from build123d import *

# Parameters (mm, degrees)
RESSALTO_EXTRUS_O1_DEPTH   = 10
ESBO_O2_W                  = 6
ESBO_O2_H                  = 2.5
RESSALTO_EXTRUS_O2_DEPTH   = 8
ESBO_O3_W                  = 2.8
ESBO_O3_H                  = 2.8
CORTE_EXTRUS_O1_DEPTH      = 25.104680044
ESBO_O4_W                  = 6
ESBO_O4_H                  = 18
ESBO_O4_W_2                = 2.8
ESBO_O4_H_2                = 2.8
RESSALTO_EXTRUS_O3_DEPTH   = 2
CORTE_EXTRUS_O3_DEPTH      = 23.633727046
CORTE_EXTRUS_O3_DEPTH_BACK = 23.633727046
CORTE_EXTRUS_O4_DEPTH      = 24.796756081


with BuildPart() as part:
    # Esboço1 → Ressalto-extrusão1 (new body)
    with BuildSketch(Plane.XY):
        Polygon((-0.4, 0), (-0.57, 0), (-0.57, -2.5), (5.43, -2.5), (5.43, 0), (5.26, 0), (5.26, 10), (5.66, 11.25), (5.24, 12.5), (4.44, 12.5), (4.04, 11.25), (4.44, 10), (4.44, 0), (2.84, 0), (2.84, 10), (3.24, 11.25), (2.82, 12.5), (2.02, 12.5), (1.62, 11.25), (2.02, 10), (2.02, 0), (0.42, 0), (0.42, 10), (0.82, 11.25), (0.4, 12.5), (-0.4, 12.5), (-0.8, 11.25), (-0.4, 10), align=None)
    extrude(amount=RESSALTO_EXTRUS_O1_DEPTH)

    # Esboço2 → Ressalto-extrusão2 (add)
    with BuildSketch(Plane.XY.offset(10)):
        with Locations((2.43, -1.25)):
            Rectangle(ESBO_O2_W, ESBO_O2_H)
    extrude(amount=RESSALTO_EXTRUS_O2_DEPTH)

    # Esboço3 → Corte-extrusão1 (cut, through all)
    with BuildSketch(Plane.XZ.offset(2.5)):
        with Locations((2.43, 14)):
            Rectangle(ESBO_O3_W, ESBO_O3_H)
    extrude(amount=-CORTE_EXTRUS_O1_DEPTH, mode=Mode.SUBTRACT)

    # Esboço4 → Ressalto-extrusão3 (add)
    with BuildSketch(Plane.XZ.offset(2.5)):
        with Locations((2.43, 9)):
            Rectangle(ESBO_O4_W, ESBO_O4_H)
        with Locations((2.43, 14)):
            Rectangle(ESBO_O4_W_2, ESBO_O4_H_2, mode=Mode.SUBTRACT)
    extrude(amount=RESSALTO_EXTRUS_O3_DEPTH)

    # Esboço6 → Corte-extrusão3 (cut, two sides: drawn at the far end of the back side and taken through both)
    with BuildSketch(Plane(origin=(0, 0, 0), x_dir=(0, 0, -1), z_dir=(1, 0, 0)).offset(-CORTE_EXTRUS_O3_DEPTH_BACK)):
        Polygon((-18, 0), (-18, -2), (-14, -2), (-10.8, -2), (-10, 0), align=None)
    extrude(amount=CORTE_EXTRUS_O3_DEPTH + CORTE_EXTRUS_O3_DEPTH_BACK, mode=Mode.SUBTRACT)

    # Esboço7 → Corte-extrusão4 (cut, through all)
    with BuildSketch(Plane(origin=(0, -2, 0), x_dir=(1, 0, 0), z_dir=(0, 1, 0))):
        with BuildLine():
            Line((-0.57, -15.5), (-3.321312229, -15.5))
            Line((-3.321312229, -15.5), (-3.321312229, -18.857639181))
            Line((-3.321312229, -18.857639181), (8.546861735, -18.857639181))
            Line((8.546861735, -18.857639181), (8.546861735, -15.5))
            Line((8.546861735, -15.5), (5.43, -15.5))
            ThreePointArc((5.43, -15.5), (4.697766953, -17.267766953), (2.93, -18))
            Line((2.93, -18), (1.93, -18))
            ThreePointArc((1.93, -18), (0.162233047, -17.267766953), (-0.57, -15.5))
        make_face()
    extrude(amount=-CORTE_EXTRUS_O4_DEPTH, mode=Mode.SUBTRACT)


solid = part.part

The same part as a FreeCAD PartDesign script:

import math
import FreeCAD as App
import Part
import Sketcher

V = App.Vector
Q = App.Units.Quantity

doc = App.newDocument("Part")
body = doc.addObject("PartDesign::Body", "Body")

sketch1 = body.newObject("Sketcher::SketchObject", "Sketch")
sketch1.AttachmentSupport = (doc.getObject("XY_Plane"), [""])
sketch1.MapMode = "FlatFace"
sketch1.addGeometry([
    Part.LineSegment(V(-0.4, 0, 0), V(-0.57, 0, 0)),
    Part.LineSegment(V(-0.57, 0, 0), V(-0.57, -2.5, 0)),
    Part.LineSegment(V(-0.57, -2.5, 0), V(5.43, -2.5, 0)),
    Part.LineSegment(V(5.43, -2.5, 0), V(5.43, 0, 0)),
    Part.LineSegment(V(5.43, 0, 0), V(5.26, 0, 0)),
    Part.LineSegment(V(5.26, 0, 0), V(5.26, 10, 0)),
    Part.LineSegment(V(5.26, 10, 0), V(5.66, 11.25, 0)),
    Part.LineSegment(V(5.66, 11.25, 0), V(5.24, 12.5, 0)),
    Part.LineSegment(V(5.24, 12.5, 0), V(4.44, 12.5, 0)),
    Part.LineSegment(V(4.44, 12.5, 0), V(4.04, 11.25, 0)),
    Part.LineSegment(V(4.04, 11.25, 0), V(4.44, 10, 0)),
    Part.LineSegment(V(4.44, 10, 0), V(4.44, 0, 0)),
    Part.LineSegment(V(4.44, 0, 0), V(2.84, 0, 0)),
    Part.LineSegment(V(2.84, 0, 0), V(2.84, 10, 0)),
    Part.LineSegment(V(2.84, 10, 0), V(3.24, 11.25, 0)),
    Part.LineSegment(V(3.24, 11.25, 0), V(2.82, 12.5, 0)),
    Part.LineSegment(V(2.82, 12.5, 0), V(2.02, 12.5, 0)),
    Part.LineSegment(V(2.02, 12.5, 0), V(1.62, 11.25, 0)),
    Part.LineSegment(V(1.62, 11.25, 0), V(2.02, 10, 0)),
    Part.LineSegment(V(2.02, 10, 0), V(2.02, 0, 0)),
    Part.LineSegment(V(2.02, 0, 0), V(0.42, 0, 0)),
    Part.LineSegment(V(0.42, 0, 0), V(0.42, 10, 0)),
    Part.LineSegment(V(0.42, 10, 0), V(0.82, 11.25, 0)),
    Part.LineSegment(V(0.82, 11.25, 0), V(0.4, 12.5, 0)),
    Part.LineSegment(V(0.4, 12.5, 0), V(-0.4, 12.5, 0)),
    Part.LineSegment(V(-0.4, 12.5, 0), V(-0.8, 11.25, 0)),
    Part.LineSegment(V(-0.8, 11.25, 0), V(-0.4, 10, 0)),
    Part.LineSegment(V(-0.4, 10, 0), V(-0.4, 0, 0)),
], False)
sketch1.addConstraint([
    Sketcher.Constraint("Coincident", 0, 2, 1, 1),
    Sketcher.Constraint("Coincident", 1, 2, 2, 1),
    Sketcher.Constraint("Coincident", 2, 2, 3, 1),
    Sketcher.Constraint("Coincident", 3, 2, 4, 1),
    Sketcher.Constraint("Coincident", 4, 2, 5, 1),
    Sketcher.Constraint("Coincident", 5, 2, 6, 1),
    Sketcher.Constraint("Coincident", 6, 2, 7, 1),
    Sketcher.Constraint("Coincident", 7, 2, 8, 1),
    Sketcher.Constraint("Coincident", 8, 2, 9, 1),
    Sketcher.Constraint("Coincident", 9, 2, 10, 1),
    Sketcher.Constraint("Coincident", 10, 2, 11, 1),
    Sketcher.Constraint("Coincident", 11, 2, 12, 1),
    Sketcher.Constraint("Coincident", 12, 2, 13, 1),
    Sketcher.Constraint("Coincident", 13, 2, 14, 1),
    Sketcher.Constraint("Coincident", 14, 2, 15, 1),
    Sketcher.Constraint("Coincident", 15, 2, 16, 1),
    Sketcher.Constraint("Coincident", 16, 2, 17, 1),
    Sketcher.Constraint("Coincident", 17, 2, 18, 1),
    Sketcher.Constraint("Coincident", 18, 2, 19, 1),
    Sketcher.Constraint("Coincident", 19, 2, 20, 1),
    Sketcher.Constraint("Coincident", 20, 2, 21, 1),
    Sketcher.Constraint("Coincident", 21, 2, 22, 1),
    Sketcher.Constraint("Coincident", 22, 2, 23, 1),
    Sketcher.Constraint("Coincident", 23, 2, 24, 1),
    Sketcher.Constraint("Coincident", 24, 2, 25, 1),
    Sketcher.Constraint("Coincident", 25, 2, 26, 1),
    Sketcher.Constraint("Coincident", 26, 2, 27, 1),
    Sketcher.Constraint("Coincident", 27, 2, 0, 1),
    Sketcher.Constraint("Horizontal", 0),
    Sketcher.Constraint("Vertical", 1),
    Sketcher.Constraint("Horizontal", 2),
    Sketcher.Constraint("Vertical", 3),
    Sketcher.Constraint("Horizontal", 4),
    Sketcher.Constraint("Vertical", 5),
    Sketcher.Constraint("Horizontal", 8),
    Sketcher.Constraint("Vertical", 11),
    Sketcher.Constraint("Horizontal", 12),
    Sketcher.Constraint("Vertical", 13),
    Sketcher.Constraint("Horizontal", 16),
    Sketcher.Constraint("Vertical", 19),
    Sketcher.Constraint("Horizontal", 20),
    Sketcher.Constraint("Vertical", 21),
    Sketcher.Constraint("Horizontal", 24),
    Sketcher.Constraint("Vertical", 27),
    Sketcher.Constraint("PointOnObject", 0, 2, -1),
    Sketcher.Constraint("PointOnObject", 3, 2, -1),
    Sketcher.Constraint("PointOnObject", 11, 2, -1),
    Sketcher.Constraint("PointOnObject", 19, 2, -1),
    Sketcher.Constraint("Parallel", 6, 9),
    Sketcher.Constraint("Parallel", 9, 14),
    Sketcher.Constraint("Parallel", 7, 15),
    Sketcher.Constraint("Parallel", 14, 17),
    Sketcher.Constraint("Parallel", 10, 18),
    Sketcher.Constraint("Parallel", 17, 22),
    Sketcher.Constraint("Parallel", 15, 23),
    Sketcher.Constraint("Parallel", 22, 25),
    Sketcher.Constraint("Parallel", 18, 26),
    Sketcher.Constraint("Horizontal", 6, 2, 9, 2),
    Sketcher.Constraint("Horizontal", 5, 2, 10, 2),
    Sketcher.Constraint("Horizontal", 10, 2, 13, 2),
    Sketcher.Constraint("Horizontal", 9, 2, 14, 2),
    Sketcher.Constraint("Horizontal", 8, 2, 15, 2),
    Sketcher.Constraint("Horizontal", 14, 2, 17, 2),
    Sketcher.Constraint("Horizontal", 13, 2, 18, 2),
    Sketcher.Constraint("Horizontal", 18, 2, 21, 2),
    Sketcher.Constraint("Horizontal", 17, 2, 22, 2),
    Sketcher.Constraint("Horizontal", 16, 2, 23, 2),
    Sketcher.Constraint("Horizontal", 22, 2, 25, 2),
    Sketcher.Constraint("Horizontal", 21, 2, 26, 2),
    Sketcher.Constraint("Vertical", 8, 2, 10, 2),
    Sketcher.Constraint("Equal", 0, 4),
    Sketcher.Constraint("Equal", 8, 16),
    Sketcher.Constraint("Equal", 12, 20),
    Sketcher.Constraint("Equal", 16, 24),
    Sketcher.Constraint("Equal", 6, 9),
    Sketcher.Constraint("DistanceX", 2, 1, 2, 2, Q("6 mm")),
    Sketcher.Constraint("DistanceY", 5, 1, 5, 2, Q("10 mm")),
    Sketcher.Constraint("DistanceX", 8, 2, 8, 1, Q("0.8 mm")),
    Sketcher.Constraint("DistanceX", 12, 2, 12, 1, Q("1.6 mm")),
    Sketcher.Constraint("DistanceY", 1, 2, 1, 1, Q("2.5 mm")),
    Sketcher.Constraint("DistanceX", 14, 2, 7, 2, Q("2 mm")),
    Sketcher.Constraint("DistanceX", 0, 2, 0, 1, Q("0.17 mm")),
    Sketcher.Constraint("DistanceY", -1, 1, 7, 2, Q("12.5 mm")),
    Sketcher.Constraint("DistanceX", -1, 1, 23, 2, Q("0.4 mm")),
])
pad1 = body.newObject("PartDesign::Pad", "Pad")
pad1.Profile = sketch1
pad1.Length = 10

sketch2 = body.newObject("Sketcher::SketchObject", "Sketch001")
sketch2.AttachmentSupport = (doc.getObject("XY_Plane"), [""])
sketch2.MapMode = "FlatFace"
sketch2.AttachmentOffset = App.Placement(V(0, 0, 10), App.Rotation())
sketch2.addGeometry([
    Part.LineSegment(V(-0.57, 0, 0), V(-0.57, -2.5, 0)),
    Part.LineSegment(V(-0.57, -2.5, 0), V(5.43, -2.5, 0)),
    Part.LineSegment(V(5.43, -2.5, 0), V(5.43, 0, 0)),
    Part.LineSegment(V(5.43, 0, 0), V(-0.57, 0, 0)),
], False)
sketch2.addConstraint([
    Sketcher.Constraint("Coincident", 0, 2, 1, 1),
    Sketcher.Constraint("Coincident", 1, 2, 2, 1),
    Sketcher.Constraint("Coincident", 2, 2, 3, 1),
    Sketcher.Constraint("Coincident", 3, 2, 0, 1),
    Sketcher.Constraint("Vertical", 0),
    Sketcher.Constraint("Horizontal", 1),
    Sketcher.Constraint("Vertical", 2),
    Sketcher.Constraint("Horizontal", 3),
    Sketcher.Constraint("PointOnObject", 2, 2, -1),
    Sketcher.Constraint("DistanceX", 1, 1, 1, 2, Q("6 mm")),
    Sketcher.Constraint("DistanceY", 0, 2, 0, 1, Q("2.5 mm")),
    Sketcher.Constraint("DistanceX", 0, 2, -1, 1, Q("0.57 mm")),
])
pad2 = body.newObject("PartDesign::Pad", "Pad001")
pad2.Profile = sketch2
pad2.Length = 8

sketch3 = body.newObject("Sketcher::SketchObject", "Sketch002")
sketch3.AttachmentSupport = (doc.getObject("XZ_Plane"), [""])
sketch3.MapMode = "FlatFace"
sketch3.AttachmentOffset = App.Placement(V(0, 0, 2.5), App.Rotation())
sketch3.addGeometry([
    Part.LineSegment(V(1.03, 15.4, 0), V(1.03, 12.6, 0)),
    Part.LineSegment(V(1.03, 12.6, 0), V(3.83, 12.6, 0)),
    Part.LineSegment(V(3.83, 12.6, 0), V(3.83, 15.4, 0)),
    Part.LineSegment(V(3.83, 15.4, 0), V(1.03, 15.4, 0)),
], False)
sketch3.addConstraint([
    Sketcher.Constraint("Coincident", 0, 2, 1, 1),
    Sketcher.Constraint("Coincident", 1, 2, 2, 1),
    Sketcher.Constraint("Coincident", 2, 2, 3, 1),
    Sketcher.Constraint("Coincident", 3, 2, 0, 1),
    Sketcher.Constraint("Vertical", 0),
    Sketcher.Constraint("Horizontal", 1),
    Sketcher.Constraint("Vertical", 2),
    Sketcher.Constraint("Horizontal", 3),
    Sketcher.Constraint("Equal", 3, 0),
    Sketcher.Constraint("DistanceX", 1, 1, 1, 2, Q("2.8 mm")),
    Sketcher.Constraint("DistanceY", -1, 1, 0, 2, Q("12.6 mm")),
    Sketcher.Constraint("DistanceX", -1, 1, 0, 2, Q("1.03 mm")),
])
pocket1 = body.newObject("PartDesign::Pocket", "Pocket")
pocket1.Profile = sketch3
pocket1.Type = "ThroughAll"

sketch4 = body.newObject("Sketcher::SketchObject", "Sketch003")
sketch4.AttachmentSupport = (doc.getObject("XZ_Plane"), [""])
sketch4.MapMode = "FlatFace"
sketch4.AttachmentOffset = App.Placement(V(0, 0, 2.5), App.Rotation())
sketch4.addGeometry([
    Part.LineSegment(V(-0.57, 18, 0), V(-0.57, 0, 0)),
    Part.LineSegment(V(-0.57, 0, 0), V(5.43, 0, 0)),
    Part.LineSegment(V(5.43, 0, 0), V(5.43, 18, 0)),
    Part.LineSegment(V(5.43, 18, 0), V(-0.57, 18, 0)),
    Part.LineSegment(V(3.83, 12.6, 0), V(1.03, 12.6, 0)),
    Part.LineSegment(V(1.03, 12.6, 0), V(1.03, 15.4, 0)),
    Part.LineSegment(V(1.03, 15.4, 0), V(3.83, 15.4, 0)),
    Part.LineSegment(V(3.83, 15.4, 0), V(3.83, 12.6, 0)),
], False)
sketch4.addConstraint([
    Sketcher.Constraint("Coincident", 0, 2, 1, 1),
    Sketcher.Constraint("Coincident", 1, 2, 2, 1),
    Sketcher.Constraint("Coincident", 2, 2, 3, 1),
    Sketcher.Constraint("Coincident", 3, 2, 0, 1),
    Sketcher.Constraint("Coincident", 4, 2, 5, 1),
    Sketcher.Constraint("Coincident", 5, 2, 6, 1),
    Sketcher.Constraint("Coincident", 6, 2, 7, 1),
    Sketcher.Constraint("Coincident", 7, 2, 4, 1),
    Sketcher.Constraint("Vertical", 0),
    Sketcher.Constraint("Horizontal", 1),
    Sketcher.Constraint("Vertical", 2),
    Sketcher.Constraint("Horizontal", 3),
    Sketcher.Constraint("Horizontal", 4),
    Sketcher.Constraint("Vertical", 5),
    Sketcher.Constraint("Horizontal", 6),
    Sketcher.Constraint("Vertical", 7),
    Sketcher.Constraint("PointOnObject", 0, 2, -1),
    Sketcher.Constraint("Equal", 6, 5),
    Sketcher.Constraint("DistanceX", 1, 1, 1, 2, Q("6 mm")),
    Sketcher.Constraint("DistanceY", 0, 2, 0, 1, Q("18 mm")),
    Sketcher.Constraint("DistanceX", 4, 2, 4, 1, Q("2.8 mm")),
    Sketcher.Constraint("DistanceY", -1, 1, 4, 2, Q("12.6 mm")),
    Sketcher.Constraint("DistanceX", 3, 2, 4, 2, Q("1.6 mm")),
    Sketcher.Constraint("DistanceX", 0, 2, -1, 1, Q("0.57 mm")),
])
pad3 = body.newObject("PartDesign::Pad", "Pad002")
pad3.Profile = sketch4
pad3.Length = 2

sketch5 = body.newObject("Sketcher::SketchObject", "Sketch004")
sketch5.AttachmentSupport = (doc.getObject("YZ_Plane"), [""])
sketch5.MapMode = "FlatFace"
sketch5.addGeometry([
    Part.LineSegment(V(0, 18, 0), V(-2, 18, 0)),
    Part.LineSegment(V(-2, 18, 0), V(-2, 10.8, 0)),
    Part.LineSegment(V(-2, 10.8, 0), V(0, 10, 0)),
    Part.LineSegment(V(0, 10, 0), V(0, 18, 0)),
], False)
sketch5.addConstraint([
    Sketcher.Constraint("Coincident", 0, 2, 1, 1),
    Sketcher.Constraint("Coincident", 1, 2, 2, 1),
    Sketcher.Constraint("Coincident", 2, 2, 3, 1),
    Sketcher.Constraint("Coincident", 3, 2, 0, 1),
    Sketcher.Constraint("Horizontal", 0),
    Sketcher.Constraint("Vertical", 1),
    Sketcher.Constraint("Vertical", 3),
    Sketcher.Constraint("PointOnObject", 2, 2, -2),
    Sketcher.Constraint("DistanceX", 0, 2, 0, 1, Q("2 mm")),
    Sketcher.Constraint("DistanceY", 3, 1, 3, 2, Q("8 mm")),
    Sketcher.Constraint("DistanceY", 1, 2, 1, 1, Q("7.2 mm")),
    Sketcher.Constraint("DistanceY", -1, 1, 0, 2, Q("18 mm")),
])
pocket2 = body.newObject("PartDesign::Pocket", "Pocket001")
pocket2.Profile = sketch5
pocket2.Type = "ThroughAll"
pocket2.Midplane = True

sketch6 = body.newObject("Sketcher::SketchObject", "Sketch005")
sketch6.AttachmentSupport = (doc.getObject("XZ_Plane"), [""])
sketch6.MapMode = "FlatFace"
sketch6.AttachmentOffset = App.Placement(V(0, 0, 2), App.Rotation())
sketch6.addGeometry([
    Part.LineSegment(V(-0.57, 15.5, 0), V(-3.321312, 15.5, 0)),
    Part.LineSegment(V(-3.321312, 15.5, 0), V(-3.321312, 18.857639, 0)),
    Part.LineSegment(V(-3.321312, 18.857639, 0), V(8.546862, 18.857639, 0)),
    Part.LineSegment(V(8.546862, 18.857639, 0), V(8.546862, 15.5, 0)),
    Part.LineSegment(V(8.546862, 15.5, 0), V(5.43, 15.5, 0)),
    Part.ArcOfCircle(Part.Circle(V(2.93, 15.5, 0), V(0, 0, 1), 2.5), math.radians(0), math.radians(90)),
    Part.LineSegment(V(2.93, 18, 0), V(1.93, 18, 0)),
    Part.ArcOfCircle(Part.Circle(V(1.93, 15.5, 0), V(0, 0, 1), 2.5), math.radians(90), math.radians(180)),
], False)
sketch6.addConstraint([
    Sketcher.Constraint("Coincident", 0, 2, 1, 1),
    Sketcher.Constraint("Coincident", 1, 2, 2, 1),
    Sketcher.Constraint("Coincident", 2, 2, 3, 1),
    Sketcher.Constraint("Coincident", 3, 2, 4, 1),
    Sketcher.Constraint("Coincident", 4, 2, 5, 1),
    Sketcher.Constraint("Tangent", 5, 2, 6, 1),
    Sketcher.Constraint("Tangent", 6, 2, 7, 1),
    Sketcher.Constraint("Coincident", 7, 2, 0, 1),
    Sketcher.Constraint("Horizontal", 0),
    Sketcher.Constraint("Vertical", 1),
    Sketcher.Constraint("Horizontal", 2),
    Sketcher.Constraint("Vertical", 3),
    Sketcher.Constraint("Horizontal", 4),
    Sketcher.Constraint("Horizontal", 6),
    Sketcher.Constraint("Equal", 5, 7),
    Sketcher.Constraint("Horizontal", 7, 3, 0, 2),
    Sketcher.Constraint("Horizontal", 0, 2, 3, 2),
    Sketcher.Constraint("Radius", 5, Q("2.5 mm")),
    Sketcher.Constraint("DistanceX", 6, 2, 6, 1, Q("1 mm")),
    Sketcher.Constraint("DistanceY", -1, 1, 5, 2, Q("18 mm")),
    Sketcher.Constraint("DistanceX", -1, 1, 5, 3, Q("2.93 mm")),
    Sketcher.Constraint("DistanceX", 4, 2, 4, 1, Q("3.116862 mm")),
    Sketcher.Constraint("DistanceY", 1, 1, 1, 2, Q("3.357639 mm")),
    Sketcher.Constraint("DistanceX", 0, 2, 0, 1, Q("2.751312 mm")),
])
pocket3 = body.newObject("PartDesign::Pocket", "Pocket002")
pocket3.Profile = sketch6
pocket3.Type = "ThroughAll"
pocket3.Reversed = True

doc.recompute()
